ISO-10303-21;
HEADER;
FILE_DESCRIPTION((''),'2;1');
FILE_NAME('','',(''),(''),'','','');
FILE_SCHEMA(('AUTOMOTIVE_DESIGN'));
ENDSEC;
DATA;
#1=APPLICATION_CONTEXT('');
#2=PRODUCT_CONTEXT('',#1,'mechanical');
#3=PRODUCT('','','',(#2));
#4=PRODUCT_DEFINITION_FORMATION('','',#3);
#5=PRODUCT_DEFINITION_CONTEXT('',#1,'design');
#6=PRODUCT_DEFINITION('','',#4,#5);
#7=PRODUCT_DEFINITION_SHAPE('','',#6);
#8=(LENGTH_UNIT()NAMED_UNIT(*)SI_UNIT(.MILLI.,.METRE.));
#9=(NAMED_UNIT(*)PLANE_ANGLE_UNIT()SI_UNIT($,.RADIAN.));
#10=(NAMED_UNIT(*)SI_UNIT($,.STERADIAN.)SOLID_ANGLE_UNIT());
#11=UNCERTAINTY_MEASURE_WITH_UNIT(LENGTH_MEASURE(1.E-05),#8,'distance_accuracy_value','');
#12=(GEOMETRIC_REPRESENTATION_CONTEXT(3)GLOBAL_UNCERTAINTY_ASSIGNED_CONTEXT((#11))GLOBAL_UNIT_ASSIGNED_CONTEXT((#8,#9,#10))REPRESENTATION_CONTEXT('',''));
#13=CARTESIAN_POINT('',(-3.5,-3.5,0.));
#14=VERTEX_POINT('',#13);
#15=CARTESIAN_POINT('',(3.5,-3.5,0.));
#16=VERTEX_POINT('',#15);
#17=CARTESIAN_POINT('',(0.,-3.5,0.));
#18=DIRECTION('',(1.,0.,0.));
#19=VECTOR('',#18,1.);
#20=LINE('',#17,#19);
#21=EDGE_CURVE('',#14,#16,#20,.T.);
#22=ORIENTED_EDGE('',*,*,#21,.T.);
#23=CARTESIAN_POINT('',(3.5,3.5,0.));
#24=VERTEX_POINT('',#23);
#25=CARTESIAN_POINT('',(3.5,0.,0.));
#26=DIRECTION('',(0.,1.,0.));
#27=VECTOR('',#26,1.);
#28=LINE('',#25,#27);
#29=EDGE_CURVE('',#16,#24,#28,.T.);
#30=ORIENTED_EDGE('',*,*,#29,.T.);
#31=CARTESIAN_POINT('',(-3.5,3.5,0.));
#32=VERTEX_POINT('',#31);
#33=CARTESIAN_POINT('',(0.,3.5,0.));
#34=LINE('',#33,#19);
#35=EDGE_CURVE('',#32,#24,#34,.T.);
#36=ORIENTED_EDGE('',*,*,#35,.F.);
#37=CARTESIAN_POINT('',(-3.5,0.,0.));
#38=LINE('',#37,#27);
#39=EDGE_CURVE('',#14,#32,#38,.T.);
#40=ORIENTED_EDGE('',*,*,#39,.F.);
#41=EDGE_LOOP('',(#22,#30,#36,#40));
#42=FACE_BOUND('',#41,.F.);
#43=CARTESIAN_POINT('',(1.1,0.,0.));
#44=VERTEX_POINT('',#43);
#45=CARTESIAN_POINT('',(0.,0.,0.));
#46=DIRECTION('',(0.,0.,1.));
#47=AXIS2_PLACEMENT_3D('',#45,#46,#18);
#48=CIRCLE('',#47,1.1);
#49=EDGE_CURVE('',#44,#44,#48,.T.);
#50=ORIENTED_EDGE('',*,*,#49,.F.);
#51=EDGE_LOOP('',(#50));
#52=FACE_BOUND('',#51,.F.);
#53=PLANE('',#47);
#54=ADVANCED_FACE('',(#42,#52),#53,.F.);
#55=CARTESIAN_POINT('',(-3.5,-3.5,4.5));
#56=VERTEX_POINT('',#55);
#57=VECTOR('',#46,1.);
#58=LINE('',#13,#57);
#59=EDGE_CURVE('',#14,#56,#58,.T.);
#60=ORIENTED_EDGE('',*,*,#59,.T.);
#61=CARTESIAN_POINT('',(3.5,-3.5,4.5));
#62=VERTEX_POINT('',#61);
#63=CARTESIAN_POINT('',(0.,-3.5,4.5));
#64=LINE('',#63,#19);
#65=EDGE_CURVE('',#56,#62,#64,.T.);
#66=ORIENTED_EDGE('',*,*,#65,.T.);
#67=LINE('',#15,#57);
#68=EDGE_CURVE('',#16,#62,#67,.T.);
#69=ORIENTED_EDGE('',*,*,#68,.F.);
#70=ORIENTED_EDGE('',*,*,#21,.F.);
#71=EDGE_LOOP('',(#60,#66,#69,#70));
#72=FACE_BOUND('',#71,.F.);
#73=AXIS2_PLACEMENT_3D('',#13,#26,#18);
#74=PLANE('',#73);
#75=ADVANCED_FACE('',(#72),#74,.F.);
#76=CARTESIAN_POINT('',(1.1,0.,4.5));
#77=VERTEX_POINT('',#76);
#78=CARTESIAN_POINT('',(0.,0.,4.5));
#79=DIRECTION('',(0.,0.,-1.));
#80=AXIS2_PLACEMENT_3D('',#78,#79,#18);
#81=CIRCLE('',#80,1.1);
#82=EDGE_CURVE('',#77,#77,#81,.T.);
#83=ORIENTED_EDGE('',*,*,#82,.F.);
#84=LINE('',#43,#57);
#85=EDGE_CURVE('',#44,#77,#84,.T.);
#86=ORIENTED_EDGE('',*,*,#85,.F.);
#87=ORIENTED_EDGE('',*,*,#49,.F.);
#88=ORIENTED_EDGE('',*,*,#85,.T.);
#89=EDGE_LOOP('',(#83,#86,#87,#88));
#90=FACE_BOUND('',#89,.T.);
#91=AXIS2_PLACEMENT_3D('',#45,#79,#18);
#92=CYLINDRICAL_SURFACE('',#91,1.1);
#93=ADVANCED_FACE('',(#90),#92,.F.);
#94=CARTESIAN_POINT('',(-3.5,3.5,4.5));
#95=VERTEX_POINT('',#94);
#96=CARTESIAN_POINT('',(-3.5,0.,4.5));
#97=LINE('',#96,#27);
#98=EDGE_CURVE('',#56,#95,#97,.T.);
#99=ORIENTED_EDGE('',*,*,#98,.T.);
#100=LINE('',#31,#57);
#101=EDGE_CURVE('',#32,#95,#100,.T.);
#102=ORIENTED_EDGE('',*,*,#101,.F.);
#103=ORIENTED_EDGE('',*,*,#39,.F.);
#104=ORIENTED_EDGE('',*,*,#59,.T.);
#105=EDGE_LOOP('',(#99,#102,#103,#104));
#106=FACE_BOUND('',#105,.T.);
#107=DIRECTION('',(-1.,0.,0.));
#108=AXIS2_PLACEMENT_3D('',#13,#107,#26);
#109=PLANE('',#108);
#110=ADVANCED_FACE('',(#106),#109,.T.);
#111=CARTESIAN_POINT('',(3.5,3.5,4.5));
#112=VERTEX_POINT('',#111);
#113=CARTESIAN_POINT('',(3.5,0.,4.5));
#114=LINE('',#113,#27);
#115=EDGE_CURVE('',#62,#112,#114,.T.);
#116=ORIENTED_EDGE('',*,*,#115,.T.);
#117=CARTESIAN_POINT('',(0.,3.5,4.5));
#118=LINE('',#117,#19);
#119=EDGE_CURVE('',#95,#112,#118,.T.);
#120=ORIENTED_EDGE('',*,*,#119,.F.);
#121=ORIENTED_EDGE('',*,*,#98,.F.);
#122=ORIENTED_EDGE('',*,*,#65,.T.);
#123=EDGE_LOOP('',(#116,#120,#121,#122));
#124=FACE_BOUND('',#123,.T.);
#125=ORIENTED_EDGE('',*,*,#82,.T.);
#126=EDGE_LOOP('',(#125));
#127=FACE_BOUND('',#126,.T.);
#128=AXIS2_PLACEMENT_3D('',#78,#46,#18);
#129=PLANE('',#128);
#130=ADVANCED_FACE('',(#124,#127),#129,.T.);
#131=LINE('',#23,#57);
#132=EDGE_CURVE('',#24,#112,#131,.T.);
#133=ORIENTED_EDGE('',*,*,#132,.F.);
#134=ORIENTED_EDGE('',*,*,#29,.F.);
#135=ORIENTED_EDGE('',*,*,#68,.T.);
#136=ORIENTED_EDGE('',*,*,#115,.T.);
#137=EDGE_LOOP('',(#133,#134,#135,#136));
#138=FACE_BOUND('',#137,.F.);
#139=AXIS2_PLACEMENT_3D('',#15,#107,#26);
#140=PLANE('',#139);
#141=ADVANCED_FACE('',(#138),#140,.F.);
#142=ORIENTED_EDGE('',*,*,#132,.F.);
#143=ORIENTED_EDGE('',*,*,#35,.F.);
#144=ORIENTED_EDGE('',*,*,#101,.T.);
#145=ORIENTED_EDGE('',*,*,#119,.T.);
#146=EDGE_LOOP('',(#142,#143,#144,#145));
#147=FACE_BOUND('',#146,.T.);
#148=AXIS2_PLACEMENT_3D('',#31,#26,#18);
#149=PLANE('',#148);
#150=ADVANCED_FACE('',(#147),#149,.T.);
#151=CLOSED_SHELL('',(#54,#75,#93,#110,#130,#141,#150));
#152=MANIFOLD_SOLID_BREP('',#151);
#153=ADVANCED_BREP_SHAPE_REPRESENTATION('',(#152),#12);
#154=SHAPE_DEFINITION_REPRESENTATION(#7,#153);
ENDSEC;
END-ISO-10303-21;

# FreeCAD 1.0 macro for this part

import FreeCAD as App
import Part
import Sketcher


def add_polygon(sketch, points):
    """Adds a closed chain of lines whose ends are joined by coincident constraints."""
    first, n = sketch.GeometryCount, len(points)
    for a, b in zip(points, points[1:] + points[:1]):
        sketch.addGeometry(Part.LineSegment(App.Vector(*a, 0), App.Vector(*b, 0)), False)
    for i in range(n):
        sketch.addConstraint(Sketcher.Constraint("Coincident", first + i, 2, first + (i + 1) % n, 1))

doc = App.newDocument("Part")
body = doc.addObject("PartDesign::Body", "Body")

sketch1 = body.newObject("Sketcher::SketchObject", "Sketch")
sketch1.AttachmentSupport = (doc.getObject("XY_Plane"), [""])
sketch1.MapMode = "FlatFace"
sketch1.addGeometry(Part.Circle(App.Vector(0, 0, 0), App.Vector(0, 0, 1), 1.1), False)
sketch1.addConstraint([
    Sketcher.Constraint("Coincident", 0, 3, -1, 1),
    Sketcher.Constraint("Diameter", 0, 2.2),
])
pad1 = body.newObject("PartDesign::Pad", "Pad")
pad1.Profile = sketch1
pad1.Length = 10
body2 = doc.addObject("PartDesign::Body", "Body001")

sketch2 = body2.newObject("Sketcher::SketchObject", "Sketch001")
sketch2.AttachmentSupport = (doc.getObject("XY_Plane001"), [""])
sketch2.MapMode = "FlatFace"
add_polygon(sketch2, [(-4, 4), (-4, -4), (4, -4), (4, 4)])
sketch2.addConstraint([
    Sketcher.Constraint("Vertical", 0),
    Sketcher.Constraint("Horizontal", 1),
    Sketcher.Constraint("Vertical", 2),
    Sketcher.Constraint("Horizontal", 3),
    Sketcher.Constraint("Symmetric", 0, 2, 2, 2, -1, 1),
    Sketcher.Constraint("Equal", 3, 0),
    Sketcher.Constraint("DistanceX", 1, 1, 1, 2, 7.0),
])
pad2 = body2.newObject("PartDesign::Pad", "Pad001")
pad2.Profile = sketch2
pad2.Length = 4.5
doc.recompute()

boolean = body2.newObject("PartDesign::Boolean", "Boolean")
boolean.Type = "Cut"
boolean.addObjects([body])

doc.recompute()
